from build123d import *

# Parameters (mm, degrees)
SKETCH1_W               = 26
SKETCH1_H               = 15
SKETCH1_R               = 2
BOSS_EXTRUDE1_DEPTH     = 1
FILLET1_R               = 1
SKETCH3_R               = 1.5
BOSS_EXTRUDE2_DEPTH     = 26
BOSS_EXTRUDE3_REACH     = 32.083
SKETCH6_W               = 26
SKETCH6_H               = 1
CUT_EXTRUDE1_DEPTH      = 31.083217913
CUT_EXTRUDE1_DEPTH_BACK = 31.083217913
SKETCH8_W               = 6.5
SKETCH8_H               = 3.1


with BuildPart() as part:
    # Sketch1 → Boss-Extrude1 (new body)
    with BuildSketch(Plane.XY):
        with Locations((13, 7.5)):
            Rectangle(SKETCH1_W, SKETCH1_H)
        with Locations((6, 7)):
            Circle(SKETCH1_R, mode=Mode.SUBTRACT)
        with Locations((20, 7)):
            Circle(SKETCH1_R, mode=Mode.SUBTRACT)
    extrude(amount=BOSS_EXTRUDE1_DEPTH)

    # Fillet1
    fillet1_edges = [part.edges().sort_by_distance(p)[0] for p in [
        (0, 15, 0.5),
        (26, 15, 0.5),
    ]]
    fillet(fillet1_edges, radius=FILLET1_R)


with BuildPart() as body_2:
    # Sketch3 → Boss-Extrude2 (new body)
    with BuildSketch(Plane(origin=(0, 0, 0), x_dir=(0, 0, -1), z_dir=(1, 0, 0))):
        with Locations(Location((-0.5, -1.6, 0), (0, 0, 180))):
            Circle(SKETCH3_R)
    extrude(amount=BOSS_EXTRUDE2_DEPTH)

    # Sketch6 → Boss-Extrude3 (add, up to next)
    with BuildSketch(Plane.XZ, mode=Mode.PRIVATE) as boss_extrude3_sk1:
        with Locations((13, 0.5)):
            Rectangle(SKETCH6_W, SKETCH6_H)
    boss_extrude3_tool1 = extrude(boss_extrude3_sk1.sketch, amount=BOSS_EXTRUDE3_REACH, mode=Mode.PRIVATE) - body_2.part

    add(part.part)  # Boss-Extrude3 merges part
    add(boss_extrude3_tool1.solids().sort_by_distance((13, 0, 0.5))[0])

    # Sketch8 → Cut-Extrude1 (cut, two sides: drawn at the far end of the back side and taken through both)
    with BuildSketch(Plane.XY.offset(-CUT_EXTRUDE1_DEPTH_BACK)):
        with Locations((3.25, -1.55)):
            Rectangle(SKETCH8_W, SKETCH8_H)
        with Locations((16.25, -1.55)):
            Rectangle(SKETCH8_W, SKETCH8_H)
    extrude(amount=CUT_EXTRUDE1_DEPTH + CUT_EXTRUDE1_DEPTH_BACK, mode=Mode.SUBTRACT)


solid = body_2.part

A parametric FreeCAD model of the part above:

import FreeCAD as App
import Part
import Sketcher

V = App.Vector


def edges_at(feature, points):
    """Names of the edges that pass closest to the given points."""
    edges = feature.Shape.Edges
    near = lambda p: min(range(len(edges)), key=lambda i: edges[i].distToShape(Part.Vertex(*p))[0])
    return sorted({f"Edge{near(p) + 1}" for p in points})

doc = App.newDocument("Part")
body = doc.addObject("PartDesign::Body", "Body")

# Sketch on XY plane
sketch1 = body.newObject("Sketcher::SketchObject", "Sketch")
sketch1.AttachmentSupport = (doc.getObject("XY_Plane"), [""])
sketch1.MapMode = "FlatFace"
sketch1.addGeometry([
    Part.LineSegment(V(0, 15, 0), V(0, 0, 0)),  # 0
    Part.LineSegment(V(0, 0, 0), V(26, 0, 0)),  # 1
    Part.LineSegment(V(26, 0, 0), V(26, 15, 0)),  # 2
    Part.LineSegment(V(26, 15, 0), V(0, 15, 0)),  # 3
    Part.Circle(V(6, 7, 0), V(0, 0, 1), 2),  # 4
    Part.Circle(V(20, 7, 0), V(0, 0, 1), 2),  # 5
], False)
sketch1.addConstraint([
    Sketcher.Constraint("Coincident", 0, 2, 1, 1),
    Sketcher.Constraint("Coincident", 1, 2, 2, 1),
    Sketcher.Constraint("Coincident", 2, 2, 3, 1),
    Sketcher.Constraint("Coincident", 3, 2, 0, 1),
    Sketcher.Constraint("Vertical", 0),
    Sketcher.Constraint("Horizontal", 1),
    Sketcher.Constraint("Vertical", 2),
    Sketcher.Constraint("Horizontal", 3),
    Sketcher.Constraint("Coincident", 0, 2, -1, 1),
    Sketcher.Constraint("Equal", 4, 5),
    Sketcher.Constraint("Horizontal", 4, 3, 5, 3),
    Sketcher.Constraint("Diameter", 4, 4.0),
    Sketcher.Constraint("DistanceX", 1, 1, 1, 2, 26.0),
    Sketcher.Constraint("DistanceY", 0, 2, 0, 1, 15.0),
    Sketcher.Constraint("DistanceX", -1, 1, 4, 3, 6.0),
    Sketcher.Constraint("DistanceY", -1, 1, 4, 3, 7.0),
    Sketcher.Constraint("DistanceX", -1, 1, 5, 3, 20.0),
])
pad1 = body.newObject("PartDesign::Pad", "Pad")
pad1.Profile = sketch1
pad1.Length = 1
doc.recompute()

fillet = body.newObject("PartDesign::Fillet", "Fillet")
fillet.Base = (pad1, edges_at(pad1, [(0, 15, 0.5), (26, 15, 0.5)]))
fillet.Radius = 1
body2 = doc.addObject("PartDesign::Body", "Body001")
body2.AllowCompound = True

# Sketch on YZ plane
sketch2 = body2.newObject("Sketcher::SketchObject", "Sketch001")
sketch2.AttachmentSupport = (doc.getObject("YZ_Plane001"), [""])
sketch2.MapMode = "FlatFace"
sketch2.addGeometry(Part.Circle(V(-1.6, 0.5, 0), V(0, 0, 1), 1.5), False)
sketch2.addConstraint([
    Sketcher.Constraint("Diameter", 0, 3.0),
    Sketcher.Constraint("DistanceX", 0, 3, -1, 1, 1.6),
    Sketcher.Constraint("DistanceY", -1, 1, 0, 3, 0.5),
])
pad2 = body2.newObject("PartDesign::Pad", "Pad001")
pad2.Profile = sketch2
pad2.Length = 26
doc.recompute()

boolean = body2.newObject("PartDesign::Boolean", "Boolean")
boolean.Type = "Fuse"
boolean.addObjects([body])

# Sketch on XZ plane
sketch3 = body2.newObject("Sketcher::SketchObject", "Sketch002")
sketch3.AttachmentSupport = (doc.getObject("XZ_Plane001"), [""])
sketch3.MapMode = "FlatFace"
sketch3.addGeometry([
    Part.LineSegment(V(0, 1, 0), V(0, 0, 0)),
    Part.LineSegment(V(0, 0, 0), V(26, 0, 0)),
    Part.LineSegment(V(26, 0, 0), V(26, 1, 0)),
    Part.LineSegment(V(26, 1, 0), V(0, 1, 0)),
], False)
sketch3.addConstraint([
    Sketcher.Constraint("Coincident", 0, 2, 1, 1),
    Sketcher.Constraint("Coincident", 1, 2, 2, 1),
    Sketcher.Constraint("Coincident", 2, 2, 3, 1),
    Sketcher.Constraint("Coincident", 3, 2, 0, 1),
    Sketcher.Constraint("Vertical", 0),
    Sketcher.Constraint("Horizontal", 1),
    Sketcher.Constraint("Vertical", 2),
    Sketcher.Constraint("Horizontal", 3),
    Sketcher.Constraint("Coincident", 0, 2, -1, 1),
    Sketcher.Constraint("DistanceX", 1, 1, 1, 2, 26.0),
    Sketcher.Constraint("DistanceY", 0, 2, 0, 1, 1.0),
])
pad3 = body2.newObject("PartDesign::Pad", "Pad002")
pad3.Profile = sketch3
pad3.Type = "UpToFirst"

# Sketch on XY plane
sketch4 = body2.newObject("Sketcher::SketchObject", "Sketch003")
sketch4.AttachmentSupport = (doc.getObject("XY_Plane001"), [""])
sketch4.MapMode = "FlatFace"
sketch4.addGeometry([
    Part.LineSegment(V(0, 0, 0), V(0, -3.1, 0)),  # 0
    Part.LineSegment(V(0, -3.1, 0), V(6.5, -3.1, 0)),  # 1
    Part.LineSegment(V(6.5, -3.1, 0), V(6.5, 0, 0)),  # 2
    Part.LineSegment(V(6.5, 0, 0), V(0, 0, 0)),  # 3
    Part.LineSegment(V(13, 0, 0), V(13, -3.1, 0)),  # 4
    Part.LineSegment(V(13, -3.1, 0), V(19.5, -3.1, 0)),  # 5
    Part.LineSegment(V(19.5, -3.1, 0), V(19.5, 0, 0)),  # 6
    Part.LineSegment(V(19.5, 0, 0), V(13, 0, 0)),  # 7
], False)
sketch4.addConstraint([
    Sketcher.Constraint("Coincident", 0, 2, 1, 1),
    Sketcher.Constraint("Coincident", 1, 2, 2, 1),
    Sketcher.Constraint("Coincident", 2, 2, 3, 1),
    Sketcher.Constraint("Coincident", 3, 2, 0, 1),
    Sketcher.Constraint("Coincident", 4, 2, 5, 1),
    Sketcher.Constraint("Coincident", 5, 2, 6, 1),
    Sketcher.Constraint("Coincident", 6, 2, 7, 1),
    Sketcher.Constraint("Coincident", 7, 2, 4, 1),
    Sketcher.Constraint("Vertical", 0),
    Sketcher.Constraint("Horizontal", 1),
    Sketcher.Constraint("Vertical", 2),
    Sketcher.Constraint("Horizontal", 3),
    Sketcher.Constraint("Vertical", 4),
    Sketcher.Constraint("Horizontal", 5),
    Sketcher.Constraint("Vertical", 6),
    Sketcher.Constraint("Horizontal", 7),
    Sketcher.Constraint("Coincident", 3, 2, -1, 1),
    Sketcher.Constraint("PointOnObject", 6, 2, -1),
    Sketcher.Constraint("Horizontal", 1, 2, 4, 2),
    Sketcher.Constraint("Equal", 3, 5),
    Sketcher.Constraint("DistanceX", 1, 1, 1, 2, 6.5),
    Sketcher.Constraint("DistanceY", 0, 2, 0, 1, 3.1),
    Sketcher.Constraint("DistanceX", -1, 1, 4, 2, 13.0),
])
pocket1 = body2.newObject("PartDesign::Pocket", "Pocket")
pocket1.Profile = sketch4
pocket1.Type = "ThroughAll"
pocket1.Midplane = True

doc.recompute()
